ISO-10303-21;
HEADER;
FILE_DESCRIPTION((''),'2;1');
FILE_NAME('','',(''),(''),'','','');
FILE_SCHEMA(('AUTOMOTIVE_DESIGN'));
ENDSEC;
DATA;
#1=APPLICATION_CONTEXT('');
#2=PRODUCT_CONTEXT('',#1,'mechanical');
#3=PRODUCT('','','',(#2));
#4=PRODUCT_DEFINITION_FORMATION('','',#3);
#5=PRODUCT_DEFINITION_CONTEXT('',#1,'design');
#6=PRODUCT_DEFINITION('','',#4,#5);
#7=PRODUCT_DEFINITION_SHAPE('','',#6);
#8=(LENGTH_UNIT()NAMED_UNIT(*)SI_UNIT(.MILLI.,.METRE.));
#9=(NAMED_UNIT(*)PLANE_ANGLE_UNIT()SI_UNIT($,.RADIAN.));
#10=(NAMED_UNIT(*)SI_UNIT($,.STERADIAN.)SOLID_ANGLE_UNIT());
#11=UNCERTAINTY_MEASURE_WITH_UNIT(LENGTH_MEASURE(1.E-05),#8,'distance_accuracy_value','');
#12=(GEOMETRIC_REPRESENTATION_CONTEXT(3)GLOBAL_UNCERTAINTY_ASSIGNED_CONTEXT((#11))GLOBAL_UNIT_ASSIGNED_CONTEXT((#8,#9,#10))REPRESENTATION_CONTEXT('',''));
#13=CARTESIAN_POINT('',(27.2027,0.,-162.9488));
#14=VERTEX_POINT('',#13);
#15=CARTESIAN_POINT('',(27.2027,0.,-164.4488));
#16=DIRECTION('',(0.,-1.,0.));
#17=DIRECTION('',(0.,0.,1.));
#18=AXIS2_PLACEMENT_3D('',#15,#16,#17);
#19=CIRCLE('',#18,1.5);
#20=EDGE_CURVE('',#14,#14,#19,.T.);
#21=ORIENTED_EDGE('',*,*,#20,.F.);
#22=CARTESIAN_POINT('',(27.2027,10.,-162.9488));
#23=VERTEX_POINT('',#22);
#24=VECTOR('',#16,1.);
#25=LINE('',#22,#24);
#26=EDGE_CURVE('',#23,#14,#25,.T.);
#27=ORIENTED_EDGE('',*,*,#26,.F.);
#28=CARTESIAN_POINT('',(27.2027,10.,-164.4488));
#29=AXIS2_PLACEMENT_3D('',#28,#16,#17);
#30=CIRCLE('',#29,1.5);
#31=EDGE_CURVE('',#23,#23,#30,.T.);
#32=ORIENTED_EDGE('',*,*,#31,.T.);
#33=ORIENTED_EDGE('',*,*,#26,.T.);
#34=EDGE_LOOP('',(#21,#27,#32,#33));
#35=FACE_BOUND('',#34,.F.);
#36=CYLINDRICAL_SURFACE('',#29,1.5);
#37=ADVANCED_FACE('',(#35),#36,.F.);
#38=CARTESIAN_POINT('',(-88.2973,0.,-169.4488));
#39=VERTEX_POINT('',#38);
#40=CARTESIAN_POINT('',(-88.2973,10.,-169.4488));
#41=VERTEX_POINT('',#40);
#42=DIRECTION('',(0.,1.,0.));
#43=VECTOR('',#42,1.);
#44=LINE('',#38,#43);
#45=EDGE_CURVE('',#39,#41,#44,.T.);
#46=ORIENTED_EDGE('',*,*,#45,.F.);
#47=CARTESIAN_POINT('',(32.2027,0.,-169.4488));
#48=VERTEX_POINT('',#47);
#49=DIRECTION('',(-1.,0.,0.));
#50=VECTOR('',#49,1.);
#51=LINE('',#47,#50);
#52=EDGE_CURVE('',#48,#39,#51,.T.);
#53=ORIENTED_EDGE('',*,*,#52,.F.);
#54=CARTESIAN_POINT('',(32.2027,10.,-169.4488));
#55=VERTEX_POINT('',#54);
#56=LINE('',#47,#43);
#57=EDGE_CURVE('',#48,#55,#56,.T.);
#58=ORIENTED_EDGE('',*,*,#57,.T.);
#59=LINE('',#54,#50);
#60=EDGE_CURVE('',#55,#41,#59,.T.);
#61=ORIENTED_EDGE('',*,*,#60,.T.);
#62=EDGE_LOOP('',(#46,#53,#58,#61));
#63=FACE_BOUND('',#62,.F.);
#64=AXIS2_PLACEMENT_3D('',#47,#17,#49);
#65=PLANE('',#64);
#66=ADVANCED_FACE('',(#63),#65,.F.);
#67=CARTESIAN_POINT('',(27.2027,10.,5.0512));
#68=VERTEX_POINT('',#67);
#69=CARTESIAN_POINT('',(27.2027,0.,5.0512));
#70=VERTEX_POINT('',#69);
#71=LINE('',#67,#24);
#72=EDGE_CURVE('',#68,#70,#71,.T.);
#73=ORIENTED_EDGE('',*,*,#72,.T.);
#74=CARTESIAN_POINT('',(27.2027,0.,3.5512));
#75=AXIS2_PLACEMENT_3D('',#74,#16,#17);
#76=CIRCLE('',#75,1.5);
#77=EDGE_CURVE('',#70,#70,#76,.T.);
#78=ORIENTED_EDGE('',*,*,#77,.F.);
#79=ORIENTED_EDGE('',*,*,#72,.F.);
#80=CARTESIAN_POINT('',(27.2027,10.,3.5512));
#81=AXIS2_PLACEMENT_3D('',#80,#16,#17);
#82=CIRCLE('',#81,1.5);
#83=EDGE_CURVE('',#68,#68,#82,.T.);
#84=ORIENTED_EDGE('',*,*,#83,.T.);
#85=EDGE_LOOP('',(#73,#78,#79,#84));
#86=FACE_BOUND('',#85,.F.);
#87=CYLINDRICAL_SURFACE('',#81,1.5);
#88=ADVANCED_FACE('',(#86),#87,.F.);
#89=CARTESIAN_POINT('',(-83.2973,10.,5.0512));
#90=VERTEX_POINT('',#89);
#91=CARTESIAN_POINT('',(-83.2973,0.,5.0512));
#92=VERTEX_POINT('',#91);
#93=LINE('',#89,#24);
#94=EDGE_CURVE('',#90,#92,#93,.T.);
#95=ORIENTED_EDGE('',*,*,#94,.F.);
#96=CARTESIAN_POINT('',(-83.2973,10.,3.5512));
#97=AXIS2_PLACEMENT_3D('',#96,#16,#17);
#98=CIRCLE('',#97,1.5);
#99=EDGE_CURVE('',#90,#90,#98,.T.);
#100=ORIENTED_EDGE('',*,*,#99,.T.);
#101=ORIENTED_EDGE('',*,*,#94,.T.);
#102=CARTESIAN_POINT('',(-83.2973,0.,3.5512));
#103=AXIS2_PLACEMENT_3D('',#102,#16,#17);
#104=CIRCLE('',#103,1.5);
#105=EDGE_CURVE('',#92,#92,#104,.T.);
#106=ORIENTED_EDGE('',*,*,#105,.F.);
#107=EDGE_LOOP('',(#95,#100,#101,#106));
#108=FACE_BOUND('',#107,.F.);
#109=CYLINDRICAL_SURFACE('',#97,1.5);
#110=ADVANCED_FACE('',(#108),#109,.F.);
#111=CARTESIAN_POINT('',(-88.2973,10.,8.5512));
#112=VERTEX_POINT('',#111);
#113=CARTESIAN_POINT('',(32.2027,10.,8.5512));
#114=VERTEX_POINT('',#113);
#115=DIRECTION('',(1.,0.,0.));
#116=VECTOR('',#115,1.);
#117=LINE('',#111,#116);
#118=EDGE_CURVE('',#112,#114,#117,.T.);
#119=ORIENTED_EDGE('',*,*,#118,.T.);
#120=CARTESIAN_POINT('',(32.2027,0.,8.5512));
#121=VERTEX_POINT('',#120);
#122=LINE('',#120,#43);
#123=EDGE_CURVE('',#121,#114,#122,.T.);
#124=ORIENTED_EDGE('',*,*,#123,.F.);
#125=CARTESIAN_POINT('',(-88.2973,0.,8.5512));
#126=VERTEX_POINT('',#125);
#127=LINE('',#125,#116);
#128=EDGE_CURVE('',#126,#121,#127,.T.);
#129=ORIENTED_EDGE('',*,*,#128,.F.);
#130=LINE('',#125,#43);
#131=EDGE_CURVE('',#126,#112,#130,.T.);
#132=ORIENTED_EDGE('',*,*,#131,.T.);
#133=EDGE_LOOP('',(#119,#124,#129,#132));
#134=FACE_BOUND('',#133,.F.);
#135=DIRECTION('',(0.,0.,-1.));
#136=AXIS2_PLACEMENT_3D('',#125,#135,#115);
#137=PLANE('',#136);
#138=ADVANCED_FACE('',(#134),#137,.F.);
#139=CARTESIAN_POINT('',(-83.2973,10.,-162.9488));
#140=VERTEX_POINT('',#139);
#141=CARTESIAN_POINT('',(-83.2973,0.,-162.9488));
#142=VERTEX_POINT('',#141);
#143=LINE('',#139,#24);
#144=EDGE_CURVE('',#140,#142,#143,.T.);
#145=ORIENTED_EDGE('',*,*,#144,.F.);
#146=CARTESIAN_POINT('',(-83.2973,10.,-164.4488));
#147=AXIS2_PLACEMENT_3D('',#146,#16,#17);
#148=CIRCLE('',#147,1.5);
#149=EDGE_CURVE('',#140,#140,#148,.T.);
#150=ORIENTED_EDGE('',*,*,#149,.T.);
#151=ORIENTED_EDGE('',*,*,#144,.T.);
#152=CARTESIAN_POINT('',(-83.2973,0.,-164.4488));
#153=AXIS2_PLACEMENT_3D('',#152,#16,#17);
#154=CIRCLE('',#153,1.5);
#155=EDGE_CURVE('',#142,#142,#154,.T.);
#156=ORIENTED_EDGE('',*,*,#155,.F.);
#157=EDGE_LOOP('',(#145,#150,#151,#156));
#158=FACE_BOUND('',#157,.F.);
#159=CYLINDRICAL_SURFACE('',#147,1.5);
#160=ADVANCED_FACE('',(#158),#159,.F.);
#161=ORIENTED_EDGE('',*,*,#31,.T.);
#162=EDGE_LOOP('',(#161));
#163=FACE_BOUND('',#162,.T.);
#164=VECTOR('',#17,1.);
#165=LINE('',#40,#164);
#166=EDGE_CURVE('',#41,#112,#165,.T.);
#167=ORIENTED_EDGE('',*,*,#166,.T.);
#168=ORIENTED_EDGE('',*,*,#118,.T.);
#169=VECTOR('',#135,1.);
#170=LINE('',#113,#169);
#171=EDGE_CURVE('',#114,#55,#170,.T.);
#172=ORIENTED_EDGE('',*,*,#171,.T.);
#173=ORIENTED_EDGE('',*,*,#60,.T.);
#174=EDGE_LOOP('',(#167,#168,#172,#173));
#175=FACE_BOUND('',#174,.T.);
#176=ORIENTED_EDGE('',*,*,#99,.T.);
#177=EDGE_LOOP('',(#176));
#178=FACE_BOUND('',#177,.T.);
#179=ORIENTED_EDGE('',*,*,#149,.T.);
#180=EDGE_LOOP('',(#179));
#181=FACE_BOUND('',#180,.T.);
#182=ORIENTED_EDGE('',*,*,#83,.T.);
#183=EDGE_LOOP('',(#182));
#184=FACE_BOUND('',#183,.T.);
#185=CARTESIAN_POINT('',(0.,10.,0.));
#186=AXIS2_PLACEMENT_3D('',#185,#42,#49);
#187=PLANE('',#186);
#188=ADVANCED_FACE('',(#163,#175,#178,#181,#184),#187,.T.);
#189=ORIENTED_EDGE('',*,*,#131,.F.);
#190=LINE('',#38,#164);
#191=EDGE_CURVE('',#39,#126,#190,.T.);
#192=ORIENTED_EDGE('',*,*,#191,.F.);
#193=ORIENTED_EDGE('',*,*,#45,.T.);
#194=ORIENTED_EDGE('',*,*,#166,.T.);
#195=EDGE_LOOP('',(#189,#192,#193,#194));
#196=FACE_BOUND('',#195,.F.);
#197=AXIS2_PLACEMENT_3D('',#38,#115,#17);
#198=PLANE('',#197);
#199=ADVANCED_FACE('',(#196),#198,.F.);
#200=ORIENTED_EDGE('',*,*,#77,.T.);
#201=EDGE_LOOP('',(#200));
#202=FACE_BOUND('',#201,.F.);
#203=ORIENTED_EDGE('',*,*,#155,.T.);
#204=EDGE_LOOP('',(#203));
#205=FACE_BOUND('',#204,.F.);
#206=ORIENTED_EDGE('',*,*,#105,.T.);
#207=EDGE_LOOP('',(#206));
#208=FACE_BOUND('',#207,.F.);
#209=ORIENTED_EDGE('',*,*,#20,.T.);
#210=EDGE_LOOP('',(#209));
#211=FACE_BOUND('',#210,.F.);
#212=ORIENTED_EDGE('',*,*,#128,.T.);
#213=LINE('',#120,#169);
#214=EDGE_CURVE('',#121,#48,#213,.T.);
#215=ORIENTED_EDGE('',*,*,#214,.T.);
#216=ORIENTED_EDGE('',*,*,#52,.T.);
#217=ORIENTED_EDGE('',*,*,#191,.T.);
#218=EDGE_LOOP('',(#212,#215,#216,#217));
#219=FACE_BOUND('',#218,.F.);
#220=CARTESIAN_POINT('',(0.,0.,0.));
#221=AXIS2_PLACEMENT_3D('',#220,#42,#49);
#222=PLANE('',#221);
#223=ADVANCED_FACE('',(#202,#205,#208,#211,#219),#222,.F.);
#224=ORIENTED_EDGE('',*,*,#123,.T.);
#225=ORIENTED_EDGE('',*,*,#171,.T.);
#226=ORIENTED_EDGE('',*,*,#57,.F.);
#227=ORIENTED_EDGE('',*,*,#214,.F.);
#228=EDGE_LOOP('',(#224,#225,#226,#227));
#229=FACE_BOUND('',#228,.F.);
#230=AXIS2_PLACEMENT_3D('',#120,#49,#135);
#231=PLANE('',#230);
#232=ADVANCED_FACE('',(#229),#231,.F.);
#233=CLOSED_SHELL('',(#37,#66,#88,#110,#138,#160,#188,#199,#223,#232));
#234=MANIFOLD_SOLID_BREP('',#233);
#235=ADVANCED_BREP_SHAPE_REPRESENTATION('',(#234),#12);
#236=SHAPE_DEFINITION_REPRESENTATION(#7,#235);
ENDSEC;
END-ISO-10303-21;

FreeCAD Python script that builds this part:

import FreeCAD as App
import Part
import Sketcher
from FreeCAD import Vector

doc = App.newDocument("Part")
body = doc.addObject("PartDesign::Body", "Body")

# Sketch on XZ plane
sketch1 = body.newObject("Sketcher::SketchObject", "Sketch")
sketch1.AttachmentSupport = (doc.getObject("XZ_Plane"), [""])
sketch1.MapMode = "FlatFace"
sketch1.addGeometry([
    Part.LineSegment(Vector(-88, -169, 0), Vector(-88, 9, 0)),
    Part.LineSegment(Vector(-88, 9, 0), Vector(32, 9, 0)),
    Part.LineSegment(Vector(32, 9, 0), Vector(32, -169, 0)),
    Part.LineSegment(Vector(32, -169, 0), Vector(-88, -169, 0)),
], False)
sketch1.addConstraint([
    Sketcher.Constraint("Coincident", 0, 2, 1, 1),
    Sketcher.Constraint("Coincident", 1, 2, 2, 1),
    Sketcher.Constraint("Coincident", 2, 2, 3, 1),
    Sketcher.Constraint("Coincident", 3, 2, 0, 1),
    Sketcher.Constraint("Vertical", 0),
    Sketcher.Constraint("Horizontal", 1),
    Sketcher.Constraint("Vertical", 2),
    Sketcher.Constraint("Horizontal", 3),
    Sketcher.Constraint("DistanceY", 0, 1, 0, 2, 178.0),
    Sketcher.Constraint("DistanceX", 1, 1, 1, 2, 120.5),
    Sketcher.Constraint("DistanceX", 0, 2, -1, 1, 88.2973),
    Sketcher.Constraint("DistanceY", -1, 1, 0, 2, 8.5512),
])
pad1 = body.newObject("PartDesign::Pad", "Pad")
pad1.Profile = sketch1
pad1.Length = 10
pad1.Reversed = True

# Sketch on XZ plane
sketch2 = body.newObject("Sketcher::SketchObject", "Sketch001")
sketch2.AttachmentSupport = (doc.getObject("XZ_Plane"), [""])
sketch2.MapMode = "FlatFace"
sketch2.AttachmentOffset = App.Placement(Vector(0, 0, -10), App.Rotation())
sketch2.addGeometry([
    Part.Circle(Vector(-83.3, 3.6, 0), Vector(0, 0, 1), 1.5),
    Part.Circle(Vector(27.2, 3.6, 0), Vector(0, 0, 1), 1.5),
    Part.Circle(Vector(-83.3, -164.4, 0), Vector(0, 0, 1), 1.5),
    Part.Circle(Vector(27.2, -164.4, 0), Vector(0, 0, 1), 1.5),
], False)
sketch2.addConstraint([
    Sketcher.Constraint("Equal", 0, 1),
    Sketcher.Constraint("Equal", 1, 2),
    Sketcher.Constraint("Equal", 2, 3),
    Sketcher.Constraint("Horizontal", 0, 3, 1, 3),
    Sketcher.Constraint("Horizontal", 2, 3, 3, 3),
    Sketcher.Constraint("Vertical", 0, 3, 2, 3),
    Sketcher.Constraint("Vertical", 1, 3, 3, 3),
    Sketcher.Constraint("Diameter", 0, 3.0),
    Sketcher.Constraint("DistanceY", 2, 3, 0, 3, 168.0),
    Sketcher.Constraint("DistanceX", 0, 3, 1, 3, 110.5),
    Sketcher.Constraint("DistanceX", 0, 3, -1, 1, 83.2973),
    Sketcher.Constraint("DistanceY", -1, 1, 0, 3, 3.5512),
])
doc.recompute()
hole = body.newObject("PartDesign::Hole", "Hole")
hole.Profile = sketch2
hole.ThreadType = "None"
hole.Diameter = 3
hole.DepthType = "ThroughAll"
hole.Reversed = True

doc.recompute()
